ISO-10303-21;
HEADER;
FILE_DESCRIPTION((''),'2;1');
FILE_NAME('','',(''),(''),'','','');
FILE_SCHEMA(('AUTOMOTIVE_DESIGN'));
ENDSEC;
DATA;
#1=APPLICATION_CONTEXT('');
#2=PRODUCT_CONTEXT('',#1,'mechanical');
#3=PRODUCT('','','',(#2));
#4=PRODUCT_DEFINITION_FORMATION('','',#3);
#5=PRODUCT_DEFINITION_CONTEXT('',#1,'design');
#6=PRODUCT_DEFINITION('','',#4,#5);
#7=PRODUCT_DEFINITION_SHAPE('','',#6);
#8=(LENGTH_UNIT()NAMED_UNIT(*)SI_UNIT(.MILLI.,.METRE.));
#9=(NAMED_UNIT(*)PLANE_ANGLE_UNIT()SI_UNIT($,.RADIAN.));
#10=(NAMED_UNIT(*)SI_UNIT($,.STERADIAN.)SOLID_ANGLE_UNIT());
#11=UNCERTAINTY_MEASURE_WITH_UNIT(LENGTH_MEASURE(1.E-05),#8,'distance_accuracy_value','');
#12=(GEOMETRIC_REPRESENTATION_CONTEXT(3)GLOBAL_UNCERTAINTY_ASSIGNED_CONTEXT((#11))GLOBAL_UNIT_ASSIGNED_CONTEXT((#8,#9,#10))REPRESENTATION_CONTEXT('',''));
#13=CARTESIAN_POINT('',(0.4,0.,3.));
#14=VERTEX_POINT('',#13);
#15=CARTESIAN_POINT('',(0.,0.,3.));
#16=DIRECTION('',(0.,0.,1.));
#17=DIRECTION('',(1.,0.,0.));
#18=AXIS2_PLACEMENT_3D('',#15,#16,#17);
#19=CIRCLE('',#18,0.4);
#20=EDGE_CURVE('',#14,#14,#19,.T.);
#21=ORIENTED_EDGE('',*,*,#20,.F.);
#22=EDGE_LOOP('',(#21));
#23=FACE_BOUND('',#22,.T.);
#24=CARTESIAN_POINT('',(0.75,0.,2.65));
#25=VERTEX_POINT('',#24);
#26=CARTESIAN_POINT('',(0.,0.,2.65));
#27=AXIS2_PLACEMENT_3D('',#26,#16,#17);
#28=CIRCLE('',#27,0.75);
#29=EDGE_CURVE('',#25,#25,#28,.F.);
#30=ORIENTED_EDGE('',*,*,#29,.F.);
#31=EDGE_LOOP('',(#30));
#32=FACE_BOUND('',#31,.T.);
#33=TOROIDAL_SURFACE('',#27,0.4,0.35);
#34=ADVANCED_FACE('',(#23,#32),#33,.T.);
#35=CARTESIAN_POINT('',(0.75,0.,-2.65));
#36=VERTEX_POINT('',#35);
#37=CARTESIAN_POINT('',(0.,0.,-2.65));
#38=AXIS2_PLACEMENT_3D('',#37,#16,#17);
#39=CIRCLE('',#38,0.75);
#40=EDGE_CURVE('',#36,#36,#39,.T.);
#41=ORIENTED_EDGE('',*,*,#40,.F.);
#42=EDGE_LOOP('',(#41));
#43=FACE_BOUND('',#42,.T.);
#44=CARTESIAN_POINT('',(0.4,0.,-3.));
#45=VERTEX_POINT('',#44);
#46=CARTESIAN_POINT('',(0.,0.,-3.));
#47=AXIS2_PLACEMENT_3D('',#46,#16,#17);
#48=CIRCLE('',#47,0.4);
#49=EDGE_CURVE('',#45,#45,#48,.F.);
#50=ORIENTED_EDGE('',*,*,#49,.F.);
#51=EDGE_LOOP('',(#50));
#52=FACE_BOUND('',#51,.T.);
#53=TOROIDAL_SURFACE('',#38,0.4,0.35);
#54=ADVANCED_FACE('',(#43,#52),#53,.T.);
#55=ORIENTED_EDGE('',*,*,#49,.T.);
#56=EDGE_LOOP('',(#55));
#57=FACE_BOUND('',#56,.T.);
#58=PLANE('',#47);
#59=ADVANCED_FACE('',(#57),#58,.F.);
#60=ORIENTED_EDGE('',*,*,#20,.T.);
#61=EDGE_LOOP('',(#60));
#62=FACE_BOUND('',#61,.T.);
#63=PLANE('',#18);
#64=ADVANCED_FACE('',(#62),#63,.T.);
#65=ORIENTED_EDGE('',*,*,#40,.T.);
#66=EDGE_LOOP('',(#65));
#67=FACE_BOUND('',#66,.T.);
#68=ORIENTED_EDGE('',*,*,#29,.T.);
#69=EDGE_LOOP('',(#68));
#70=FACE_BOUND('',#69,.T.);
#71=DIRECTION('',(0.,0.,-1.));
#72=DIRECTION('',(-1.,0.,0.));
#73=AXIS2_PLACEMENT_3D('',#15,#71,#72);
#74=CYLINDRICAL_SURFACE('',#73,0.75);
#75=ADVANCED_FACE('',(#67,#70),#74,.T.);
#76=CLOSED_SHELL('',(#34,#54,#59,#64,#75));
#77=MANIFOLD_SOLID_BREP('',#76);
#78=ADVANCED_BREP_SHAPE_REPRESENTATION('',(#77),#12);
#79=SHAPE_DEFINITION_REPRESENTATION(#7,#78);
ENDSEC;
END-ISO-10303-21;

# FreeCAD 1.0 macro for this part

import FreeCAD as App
import Part
import Sketcher
from FreeCAD import Vector


def edges_at(feature, points):
    """Names of the edges that pass closest to the given points."""
    edges = feature.Shape.Edges
    near = lambda p: min(range(len(edges)), key=lambda i: edges[i].distToShape(Part.Vertex(*p))[0])
    return sorted({f"Edge{near(p) + 1}" for p in points})

doc = App.newDocument("Part")
body = doc.addObject("PartDesign::Body", "Body")

# Sketch on XY plane
sketch1 = doc.addObject("Sketcher::SketchObject", "Sketch")
body.addObject(sketch1)
sketch1.AttachmentSupport = (doc.XY_Plane, [""])
sketch1.MapMode = "FlatFace"
sketch1.addGeometry(Part.Circle(Vector(0, 0, 0), Vector(0, 0, 1), 0.75), False)
sketch1.addConstraint([
    Sketcher.Constraint("Coincident", 0, 3, -1, 1),
    Sketcher.Constraint("Diameter", 0, 1.5),
])
pad1 = doc.addObject("PartDesign::Pad", "Pad")
body.addObject(pad1)
pad1.Profile = sketch1
pad1.Length = 6
pad1.Midplane = True
doc.recompute()

fillet = doc.addObject("PartDesign::Fillet", "Fillet")
body.addObject(fillet)
fillet.Base = (pad1, edges_at(pad1, [(-0.75, 0, -3), (-0.75, 0, 3)]))
fillet.Radius = 0.35

doc.recompute()
